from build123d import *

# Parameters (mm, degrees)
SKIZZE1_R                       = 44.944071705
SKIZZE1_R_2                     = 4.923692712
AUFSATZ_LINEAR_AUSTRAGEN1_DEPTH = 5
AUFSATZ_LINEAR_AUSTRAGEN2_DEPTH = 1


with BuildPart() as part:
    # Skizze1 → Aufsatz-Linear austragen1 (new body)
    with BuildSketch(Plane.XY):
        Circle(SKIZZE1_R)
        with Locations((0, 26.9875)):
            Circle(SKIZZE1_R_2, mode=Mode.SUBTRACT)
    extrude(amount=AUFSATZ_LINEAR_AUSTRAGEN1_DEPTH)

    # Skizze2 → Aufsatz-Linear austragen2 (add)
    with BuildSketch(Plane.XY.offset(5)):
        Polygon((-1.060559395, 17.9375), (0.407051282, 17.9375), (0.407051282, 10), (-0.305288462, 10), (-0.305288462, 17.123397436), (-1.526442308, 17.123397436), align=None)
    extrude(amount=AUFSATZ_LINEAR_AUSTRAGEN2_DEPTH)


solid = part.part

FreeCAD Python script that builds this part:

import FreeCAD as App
import Part
import Sketcher
Q = App.Units.Quantity


def add_polygon(sketch, points):
    """Adds a closed chain of lines whose ends are joined by coincident constraints."""
    first, n = sketch.GeometryCount, len(points)
    for a, b in zip(points, points[1:] + points[:1]):
        sketch.addGeometry(Part.LineSegment(App.Vector(*a, 0), App.Vector(*b, 0)), False)
    for i in range(n):
        sketch.addConstraint(Sketcher.Constraint("Coincident", first + i, 2, first + (i + 1) % n, 1))

doc = App.newDocument("Part")
body = doc.addObject("PartDesign::Body", "Body")

# Sketch on XY plane
sketch1 = doc.addObject("Sketcher::SketchObject", "Sketch")
body.addObject(sketch1)
sketch1.AttachmentSupport = (doc.XY_Plane, [""])
sketch1.MapMode = "FlatFace"
sketch1.addGeometry(Part.Circle(App.Vector(0, 0, 0), App.Vector(0, 0, 1), 44.944072), False)
sketch1.addGeometry(Part.Circle(App.Vector(0, 26.9875, 0), App.Vector(0, 0, 1), 4.923693), False)
sketch1.addConstraint(Sketcher.Constraint("Coincident", 0, 3, -1, 1))
sketch1.addConstraint(Sketcher.Constraint("PointOnObject", 1, 3, -2))
sketch1.addConstraint(Sketcher.Constraint("Diameter", 0, Q("89.888143 mm")))
sketch1.addConstraint(Sketcher.Constraint("Diameter", 1, Q("9.847385 mm")))
sketch1.addConstraint(Sketcher.Constraint("DistanceY", -1, 1, 1, 3, Q("26.9875 mm")))
pad1 = doc.addObject("PartDesign::Pad", "Pad")
body.addObject(pad1)
pad1.Profile = sketch1
pad1.Length = 5

# Sketch on XY plane
sketch2 = doc.addObject("Sketcher::SketchObject", "Sketch001")
body.addObject(sketch2)
sketch2.AttachmentSupport = (doc.XY_Plane, [""])
sketch2.MapMode = "FlatFace"
sketch2.AttachmentOffset = App.Placement(App.Vector(0, 0, 5), App.Rotation())
add_polygon(sketch2, [(0.407051, 17.9375), (-1.060559, 17.9375), (-1.526442, 17.123397), (-0.305288, 17.123397), (-0.305288, 10), (0.407051, 10)])  # lines 0-5
sketch2.addConstraint(Sketcher.Constraint("Horizontal", 0))
sketch2.addConstraint(Sketcher.Constraint("Horizontal", 2))
sketch2.addConstraint(Sketcher.Constraint("Vertical", 3))
sketch2.addConstraint(Sketcher.Constraint("Horizontal", 4))
sketch2.addConstraint(Sketcher.Constraint("Vertical", 5))
sketch2.addConstraint(Sketcher.Constraint("DistanceY", -1, 1, 3, 2, Q("10 mm")))
sketch2.addConstraint(Sketcher.Constraint("DistanceY", 5, 1, 5, 2, Q("7.9375 mm")))
sketch2.addConstraint(Sketcher.Constraint("DistanceX", 0, 2, 0, 1, Q("1.467611 mm")))
sketch2.addConstraint(Sketcher.Constraint("DistanceX", 4, 1, 4, 2, Q("0.71234 mm")))
sketch2.addConstraint(Sketcher.Constraint("Distance", 1, Q("0.937982 mm")))
sketch2.addConstraint(Sketcher.Constraint("DistanceX", 2, 1, 2, 2, Q("1.221154 mm")))
sketch2.addConstraint(Sketcher.Constraint("DistanceX", 0, 2, -1, 1, Q("1.060559 mm")))
pad2 = doc.addObject("PartDesign::Pad", "Pad001")
body.addObject(pad2)
pad2.Profile = sketch2
pad2.Length = 1

doc.recompute()
